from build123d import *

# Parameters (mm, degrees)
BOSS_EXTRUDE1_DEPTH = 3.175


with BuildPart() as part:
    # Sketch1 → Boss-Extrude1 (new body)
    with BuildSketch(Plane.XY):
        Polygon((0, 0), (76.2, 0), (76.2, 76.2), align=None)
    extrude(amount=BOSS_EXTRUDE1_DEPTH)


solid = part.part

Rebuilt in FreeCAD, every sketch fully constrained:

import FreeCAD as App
import Part
import Sketcher

V = App.Vector
Q = App.Units.Quantity

doc = App.newDocument("Part")
body = doc.addObject("PartDesign::Body", "Body")

# Sketch on XY plane
sketch1 = doc.addObject("Sketcher::SketchObject", "Sketch")
body.addObject(sketch1)
sketch1.AttachmentSupport = (doc.XY_Plane, [""])
sketch1.MapMode = "FlatFace"
sketch1.addGeometry(Part.LineSegment(V(0, 0, 0), V(76, 0, 0)), False)
sketch1.addGeometry(Part.LineSegment(V(76, 0, 0), V(76, 76, 0)), False)
sketch1.addGeometry(Part.LineSegment(V(76, 76, 0), V(0, 0, 0)), False)
sketch1.addConstraint(Sketcher.Constraint("Coincident", 0, 2, 1, 1))
sketch1.addConstraint(Sketcher.Constraint("Coincident", 1, 2, 2, 1))
sketch1.addConstraint(Sketcher.Constraint("Coincident", 2, 2, 0, 1))
sketch1.addConstraint(Sketcher.Constraint("Horizontal", 0))
sketch1.addConstraint(Sketcher.Constraint("Vertical", 1))
sketch1.addConstraint(Sketcher.Constraint("Coincident", 2, 2, -1, 1))
sketch1.addConstraint(Sketcher.Constraint("Equal", 0, 1))
sketch1.addConstraint(Sketcher.Constraint("DistanceX", 0, 1, 0, 2, Q("3 in")))
pad1 = doc.addObject("PartDesign::Pad", "Pad")
body.addObject(pad1)
pad1.Profile = sketch1
pad1.Length = Q("0.125 in")

doc.recompute()
